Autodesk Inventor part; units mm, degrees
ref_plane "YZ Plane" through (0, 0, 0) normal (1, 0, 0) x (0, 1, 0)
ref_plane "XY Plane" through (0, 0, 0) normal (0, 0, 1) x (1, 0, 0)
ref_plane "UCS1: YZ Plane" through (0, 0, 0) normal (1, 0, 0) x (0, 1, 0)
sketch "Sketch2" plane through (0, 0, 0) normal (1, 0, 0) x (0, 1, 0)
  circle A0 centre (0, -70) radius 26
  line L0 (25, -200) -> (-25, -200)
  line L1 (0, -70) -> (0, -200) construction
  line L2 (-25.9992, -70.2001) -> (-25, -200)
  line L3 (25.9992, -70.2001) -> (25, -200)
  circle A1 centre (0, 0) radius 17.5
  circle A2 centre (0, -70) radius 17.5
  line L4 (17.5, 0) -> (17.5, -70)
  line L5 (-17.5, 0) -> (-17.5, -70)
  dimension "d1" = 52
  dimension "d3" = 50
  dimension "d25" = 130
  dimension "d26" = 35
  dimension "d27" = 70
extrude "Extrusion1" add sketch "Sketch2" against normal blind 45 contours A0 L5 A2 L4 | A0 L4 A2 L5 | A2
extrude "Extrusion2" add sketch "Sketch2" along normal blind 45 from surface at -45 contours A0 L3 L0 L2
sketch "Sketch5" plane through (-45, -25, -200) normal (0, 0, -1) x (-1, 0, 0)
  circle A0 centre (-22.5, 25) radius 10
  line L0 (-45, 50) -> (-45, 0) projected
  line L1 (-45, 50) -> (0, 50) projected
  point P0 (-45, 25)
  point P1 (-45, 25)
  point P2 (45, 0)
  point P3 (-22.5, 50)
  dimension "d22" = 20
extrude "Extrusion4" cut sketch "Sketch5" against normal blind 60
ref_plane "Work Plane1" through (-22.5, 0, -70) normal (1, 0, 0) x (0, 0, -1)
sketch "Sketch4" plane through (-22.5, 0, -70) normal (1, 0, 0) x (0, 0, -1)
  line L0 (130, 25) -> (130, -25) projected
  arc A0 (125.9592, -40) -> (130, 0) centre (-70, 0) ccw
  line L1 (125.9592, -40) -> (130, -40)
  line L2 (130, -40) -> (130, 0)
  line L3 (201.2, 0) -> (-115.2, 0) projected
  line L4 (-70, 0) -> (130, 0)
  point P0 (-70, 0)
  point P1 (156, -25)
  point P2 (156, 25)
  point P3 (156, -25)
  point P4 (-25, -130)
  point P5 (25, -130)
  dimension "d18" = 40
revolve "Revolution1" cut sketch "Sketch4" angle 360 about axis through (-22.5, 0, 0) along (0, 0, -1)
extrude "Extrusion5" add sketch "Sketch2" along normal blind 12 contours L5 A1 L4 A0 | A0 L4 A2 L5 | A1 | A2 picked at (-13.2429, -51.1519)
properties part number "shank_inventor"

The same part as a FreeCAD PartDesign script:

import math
import FreeCAD as App
import Part
import Sketcher
Q = App.Units.Quantity

doc = App.newDocument("Part")
body = doc.addObject("PartDesign::Body", "Body")

sketch1 = body.newObject("Sketcher::SketchObject", "Sketch")
sketch1.AttachmentSupport = (doc.getObject("YZ_Plane"), [""])
sketch1.MapMode = "FlatFace"
sketch1.addGeometry(Part.Circle(App.Vector(0, -70, 0), App.Vector(0, 0, 1), 26), False)
sketch1.addConstraint([
    Sketcher.Constraint("PointOnObject", 0, 3, -2),
    Sketcher.Constraint("Diameter", 0, Q("52 mm")),
    Sketcher.Constraint("DistanceY", 0, 3, -1, 1, Q("70 mm")),
])
pad1 = body.newObject("PartDesign::Pad", "Pad")
pad1.Profile = sketch1
pad1.Length = 45
pad1.Reversed = True

sketch2 = body.newObject("Sketcher::SketchObject", "Sketch001")
sketch2.AttachmentSupport = (doc.getObject("YZ_Plane"), [""])
sketch2.MapMode = "FlatFace"
sketch2.AttachmentOffset = App.Placement(App.Vector(0, 0, -45), App.Rotation())
sketch2.addGeometry([
    Part.ArcOfCircle(Part.Circle(App.Vector(0, -70, 0), App.Vector(0, 0, 1), 26), math.radians(-179.559038), math.radians(-0.440962)),
    Part.LineSegment(App.Vector(-25.9992, -70.2001, 0), App.Vector(-25, -200, 0)),
    Part.LineSegment(App.Vector(-25, -200, 0), App.Vector(25, -200, 0)),
    Part.LineSegment(App.Vector(25, -200, 0), App.Vector(25.9992, -70.2001, 0)),
], False)
sketch2.addConstraint([
    Sketcher.Constraint("Tangent", 0, 1, 1, 1),
    Sketcher.Constraint("Coincident", 1, 2, 2, 1),
    Sketcher.Constraint("Coincident", 2, 2, 3, 1),
    Sketcher.Constraint("Tangent", 3, 2, 0, 2),
    Sketcher.Constraint("Horizontal", 2),
    Sketcher.Constraint("Symmetric", 0, 1, 3, 2, -2),
    Sketcher.Constraint("Radius", 0, Q("26 mm")),
    Sketcher.Constraint("DistanceX", 2, 1, 2, 2, Q("50 mm")),
    Sketcher.Constraint("DistanceY", 0, 3, -1, 1, Q("70 mm")),
    Sketcher.Constraint("DistanceY", 1, 2, 0, 3, Q("130 mm")),
])
pad2 = body.newObject("PartDesign::Pad", "Pad001")
pad2.Profile = sketch2
pad2.Length = 45

sketch3 = body.newObject("Sketcher::SketchObject", "Sketch002")
sketch3.AttachmentSupport = (doc.getObject("XY_Plane"), [""])
sketch3.MapMode = "FlatFace"
sketch3.AttachmentOffset = App.Placement(App.Vector(0, 0, -200), App.Rotation())
sketch3.addGeometry(Part.Circle(App.Vector(-22.5, 0, 0), App.Vector(0, 0, 1), 10), False)
sketch3.addConstraint([
    Sketcher.Constraint("PointOnObject", 0, 3, -1),
    Sketcher.Constraint("Diameter", 0, Q("20 mm")),
    Sketcher.Constraint("DistanceX", 0, 3, -1, 1, Q("22.5 mm")),
])
pocket1 = body.newObject("PartDesign::Pocket", "Pocket")
pocket1.Profile = sketch3
pocket1.Length = 60
pocket1.Reversed = True

sketch4 = body.newObject("Sketcher::SketchObject", "Sketch003")
sketch4.AttachmentSupport = (doc.getObject("YZ_Plane"), [""])
sketch4.MapMode = "FlatFace"
sketch4.AttachmentOffset = App.Placement(App.Vector(0, 0, -22.5), App.Rotation())
sketch4.addGeometry([
    Part.LineSegment(App.Vector(-40, -200, 0), App.Vector(0, -200, 0)),
    Part.ArcOfCircle(Part.Circle(App.Vector(-0.0003, -0.001971, 0), App.Vector(0, 0, 1), 199.998029), math.radians(-101.536987), math.radians(-89.999914)),
    Part.LineSegment(App.Vector(-40, -195.9592, 0), App.Vector(-40, -200, 0)),
], False)
sketch4.addConstraint([
    Sketcher.Constraint("Tangent", 0, 2, 1, 2),
    Sketcher.Constraint("Coincident", 1, 1, 2, 1),
    Sketcher.Constraint("Coincident", 2, 2, 0, 1),
    Sketcher.Constraint("Horizontal", 0),
    Sketcher.Constraint("Vertical", 2),
    Sketcher.Constraint("PointOnObject", 0, 2, -2),
    Sketcher.Constraint("DistanceX", 0, 1, 0, 2, Q("40 mm")),
    Sketcher.Constraint("DistanceY", 0, 2, -1, 1, Q("200 mm")),
    Sketcher.Constraint("Radius", 1, Q("199.998 mm")),
])
groove = body.newObject("PartDesign::Groove", "Groove")
groove.Profile = sketch4
groove.ReferenceAxis = (sketch4, ["V_Axis"])
groove.Angle = 360

sketch5 = body.newObject("Sketcher::SketchObject", "Sketch004")
sketch5.AttachmentSupport = (doc.getObject("YZ_Plane"), [""])
sketch5.MapMode = "FlatFace"
sketch5.addGeometry([
    Part.LineSegment(App.Vector(-17.5, 0, 0), App.Vector(-17.5, -70, 0)),
    Part.ArcOfCircle(Part.Circle(App.Vector(0, -70, 0), App.Vector(0, 0, 1), 17.5), math.radians(180), math.radians(360)),
    Part.LineSegment(App.Vector(17.5, -70, 0), App.Vector(17.5, 0, 0)),
    Part.ArcOfCircle(Part.Circle(App.Vector(0, 0, 0), App.Vector(0, 0, 1), 17.5), math.radians(0), math.radians(180)),
], False)
sketch5.addConstraint([
    Sketcher.Constraint("Tangent", 0, 2, 1, 1),
    Sketcher.Constraint("Tangent", 1, 2, 2, 1),
    Sketcher.Constraint("Tangent", 2, 2, 3, 1),
    Sketcher.Constraint("Tangent", 3, 2, 0, 1),
    Sketcher.Constraint("Vertical", 0),
    Sketcher.Constraint("Vertical", 2),
    Sketcher.Constraint("Coincident", 3, 3, -1, 1),
    Sketcher.Constraint("Radius", 1, Q("17.5 mm")),
    Sketcher.Constraint("DistanceY", 0, 2, 0, 1, Q("70 mm")),
])
pad3 = body.newObject("PartDesign::Pad", "Pad002")
pad3.Profile = sketch5
pad3.Length = 12

doc.recompute()
